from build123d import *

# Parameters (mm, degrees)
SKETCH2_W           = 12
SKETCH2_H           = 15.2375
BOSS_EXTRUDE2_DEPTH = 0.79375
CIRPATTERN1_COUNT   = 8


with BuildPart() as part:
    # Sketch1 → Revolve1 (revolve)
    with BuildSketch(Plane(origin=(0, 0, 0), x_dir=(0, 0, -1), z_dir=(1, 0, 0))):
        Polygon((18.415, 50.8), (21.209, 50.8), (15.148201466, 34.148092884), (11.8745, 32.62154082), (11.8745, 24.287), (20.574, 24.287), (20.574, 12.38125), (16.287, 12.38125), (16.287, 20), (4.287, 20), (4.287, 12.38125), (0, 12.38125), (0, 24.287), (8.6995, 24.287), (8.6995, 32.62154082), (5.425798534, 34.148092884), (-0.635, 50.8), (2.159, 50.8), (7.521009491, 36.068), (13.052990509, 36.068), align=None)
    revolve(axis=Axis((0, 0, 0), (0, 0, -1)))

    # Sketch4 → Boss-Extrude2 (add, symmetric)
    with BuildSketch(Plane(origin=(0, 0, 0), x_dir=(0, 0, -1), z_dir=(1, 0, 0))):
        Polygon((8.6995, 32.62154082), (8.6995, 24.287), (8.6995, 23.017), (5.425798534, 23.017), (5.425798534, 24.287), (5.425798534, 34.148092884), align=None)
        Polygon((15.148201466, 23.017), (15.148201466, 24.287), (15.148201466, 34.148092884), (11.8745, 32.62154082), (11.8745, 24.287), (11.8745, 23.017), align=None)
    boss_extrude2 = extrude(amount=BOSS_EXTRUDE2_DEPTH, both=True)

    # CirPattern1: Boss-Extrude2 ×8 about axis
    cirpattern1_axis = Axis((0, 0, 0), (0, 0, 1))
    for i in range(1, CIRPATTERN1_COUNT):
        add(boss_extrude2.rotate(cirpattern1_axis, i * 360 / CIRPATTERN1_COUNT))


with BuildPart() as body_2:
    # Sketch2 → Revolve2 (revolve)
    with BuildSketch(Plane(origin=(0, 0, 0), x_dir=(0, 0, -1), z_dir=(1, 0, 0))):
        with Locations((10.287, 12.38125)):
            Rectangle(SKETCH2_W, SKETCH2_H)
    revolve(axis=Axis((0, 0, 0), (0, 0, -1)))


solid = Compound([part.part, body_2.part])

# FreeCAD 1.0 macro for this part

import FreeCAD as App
import Part
import Sketcher
Q = App.Units.Quantity

doc = App.newDocument("Part")
params = doc.addObject("Spreadsheet::Sheet", "Params")
for row, (alias, value) in enumerate([
    ("sketch1_height", "0.11 in"),
    ("revolution_angle", "360 deg"),
    ("pad1_length", "0.0625 in"),
    ("revolution2_angle", "360 deg"),
], start=1):
    params.set(f"A{row}", alias)
    params.set(f"B{row}", "=" + value)
    params.setAlias(f"B{row}", alias)

body = doc.addObject("PartDesign::Body", "Body")

sketch1 = body.newObject("Sketcher::SketchObject", "Sketch")
sketch1.AttachmentSupport = (doc.getObject("YZ_Plane"), [""])
sketch1.MapMode = "FlatFace"
sketch1.addGeometry([
    Part.LineSegment(App.Vector(50.8, -21.2, 0), App.Vector(50.8, -18.4, 0)),
    Part.LineSegment(App.Vector(50.8, -18.4, 0), App.Vector(36.1, -13.1, 0)),
    Part.LineSegment(App.Vector(36.1, -13.1, 0), App.Vector(36.1, -7.5, 0)),
    Part.LineSegment(App.Vector(36.1, -7.5, 0), App.Vector(50.8, -2.2, 0)),
    Part.LineSegment(App.Vector(50.8, -2.2, 0), App.Vector(50.8, 0.6, 0)),
    Part.LineSegment(App.Vector(50.8, 0.6, 0), App.Vector(34.1, -5.4, 0)),
    Part.LineSegment(App.Vector(34.1, -5.4, 0), App.Vector(32.6, -8.7, 0)),
    Part.LineSegment(App.Vector(32.6, -8.7, 0), App.Vector(24.3, -8.7, 0)),
    Part.LineSegment(App.Vector(24.3, -8.7, 0), App.Vector(24.3, 0, 0)),
    Part.LineSegment(App.Vector(24.3, 0, 0), App.Vector(12.4, 0, 0)),
    Part.LineSegment(App.Vector(12.4, 0, 0), App.Vector(12.4, -4.3, 0)),
    Part.LineSegment(App.Vector(12.4, -4.3, 0), App.Vector(20, -4.3, 0)),
    Part.LineSegment(App.Vector(20, -4.3, 0), App.Vector(20, -16.3, 0)),
    Part.LineSegment(App.Vector(20, -16.3, 0), App.Vector(12.4, -16.3, 0)),
    Part.LineSegment(App.Vector(12.4, -16.3, 0), App.Vector(12.4, -20.6, 0)),
    Part.LineSegment(App.Vector(12.4, -20.6, 0), App.Vector(24.3, -20.6, 0)),
    Part.LineSegment(App.Vector(24.3, -20.6, 0), App.Vector(24.3, -11.9, 0)),
    Part.LineSegment(App.Vector(24.3, -11.9, 0), App.Vector(32.6, -11.9, 0)),
    Part.LineSegment(App.Vector(32.6, -11.9, 0), App.Vector(34.1, -15.1, 0)),
    Part.LineSegment(App.Vector(34.1, -15.1, 0), App.Vector(50.8, -21.2, 0)),
], False)
sketch1.addConstraint([
    Sketcher.Constraint("Coincident", 0, 2, 1, 1),
    Sketcher.Constraint("Coincident", 1, 2, 2, 1),
    Sketcher.Constraint("Coincident", 2, 2, 3, 1),
    Sketcher.Constraint("Coincident", 3, 2, 4, 1),
    Sketcher.Constraint("Coincident", 4, 2, 5, 1),
    Sketcher.Constraint("Coincident", 5, 2, 6, 1),
    Sketcher.Constraint("Coincident", 6, 2, 7, 1),
    Sketcher.Constraint("Coincident", 7, 2, 8, 1),
    Sketcher.Constraint("Coincident", 8, 2, 9, 1),
    Sketcher.Constraint("Coincident", 9, 2, 10, 1),
    Sketcher.Constraint("Coincident", 10, 2, 11, 1),
    Sketcher.Constraint("Coincident", 11, 2, 12, 1),
    Sketcher.Constraint("Coincident", 12, 2, 13, 1),
    Sketcher.Constraint("Coincident", 13, 2, 14, 1),
    Sketcher.Constraint("Coincident", 14, 2, 15, 1),
    Sketcher.Constraint("Coincident", 15, 2, 16, 1),
    Sketcher.Constraint("Coincident", 16, 2, 17, 1),
    Sketcher.Constraint("Coincident", 17, 2, 18, 1),
    Sketcher.Constraint("Coincident", 18, 2, 19, 1),
    Sketcher.Constraint("Coincident", 19, 2, 0, 1),
    Sketcher.Constraint("Vertical", 0),
    Sketcher.Constraint("Vertical", 2),
    Sketcher.Constraint("Vertical", 4),
    Sketcher.Constraint("Horizontal", 7),
    Sketcher.Constraint("Vertical", 8),
    Sketcher.Constraint("Horizontal", 9),
    Sketcher.Constraint("Vertical", 10),
    Sketcher.Constraint("Horizontal", 11),
    Sketcher.Constraint("Vertical", 12),
    Sketcher.Constraint("Horizontal", 13),
    Sketcher.Constraint("Vertical", 14),
    Sketcher.Constraint("Horizontal", 15),
    Sketcher.Constraint("Vertical", 16),
    Sketcher.Constraint("Horizontal", 17),
    Sketcher.Constraint("PointOnObject", 8, 2, -1),
    Sketcher.Constraint("Parallel", 3, 5),
    Sketcher.Constraint("Parallel", 1, 19),
    Sketcher.Constraint("Vertical", 0, 2, 3, 2),
    Sketcher.Constraint("Vertical", 10, 2, 13, 2),
    Sketcher.Constraint("Vertical", 8, 2, 15, 2),
    Sketcher.Constraint("Vertical", 6, 2, 17, 2),
    Sketcher.Constraint("Vertical", 5, 2, 18, 2),
    Sketcher.Constraint("Equal", 0, 4),
    Sketcher.Constraint("Equal", 10, 14),
    Sketcher.Constraint("Equal", 8, 16),
    Sketcher.Constraint("Equal", 1, 3),
    Sketcher.Constraint("Equal", 6, 18),
    Sketcher.Constraint("DistanceX", -1, 1, 0, 2, Q("2 in")),
    Sketcher.Constraint("Angle", 1, Q("160 deg")),
    Sketcher.Constraint("Angle", 6, Q("-115 deg")),
    Sketcher.Constraint("DistanceY", 0, 1, 0, 2, Q("0.11 in")),
    Sketcher.Constraint("DistanceX", -1, 1, 1, 2, Q("1.42 in")),
    Sketcher.Constraint("DistanceY", 14, 2, -1, 1, Q("0.81 in")),
    Sketcher.Constraint("DistanceY", 0, 2, 3, 2, Q("0.64 in")),
    Sketcher.Constraint("DistanceY", 8, 1, 8, 2, Q("0.3425 in")),
    Sketcher.Constraint("DistanceY", 10, 2, 10, 1, 4.287),
    Sketcher.Constraint("DistanceX", 7, 2, 7, 1, 8.334541),
    Sketcher.Constraint("DistanceX", 9, 2, 9, 1, 11.90575),
    Sketcher.Constraint("DistanceX", 11, 1, 11, 2, 7.61875),
    Sketcher.Constraint("DistanceY", 5, 2, -1, 1, 5.425799),
])
sketch1.setExpression("Constraints[50]", "Params.sketch1_height")
revolution = body.newObject("PartDesign::Revolution", "Revolution")
revolution.Profile = sketch1
revolution.ReferenceAxis = (sketch1, ["V_Axis"])
revolution.setExpression("Angle", "Params.revolution_angle")

sketch2 = body.newObject("Sketcher::SketchObject", "Sketch001")
sketch2.AttachmentSupport = (doc.getObject("YZ_Plane"), [""])
sketch2.MapMode = "FlatFace"
sketch2.addGeometry([
    Part.LineSegment(App.Vector(23, -8.7, 0), App.Vector(32.6, -8.7, 0)),
    Part.LineSegment(App.Vector(32.6, -8.7, 0), App.Vector(34.1, -5.4, 0)),
    Part.LineSegment(App.Vector(34.1, -5.4, 0), App.Vector(23, -5.4, 0)),
    Part.LineSegment(App.Vector(23, -5.4, 0), App.Vector(23, -8.7, 0)),
    Part.LineSegment(App.Vector(23, -15.1, 0), App.Vector(34.1, -15.1, 0)),
    Part.LineSegment(App.Vector(34.1, -15.1, 0), App.Vector(32.6, -11.9, 0)),
    Part.LineSegment(App.Vector(32.6, -11.9, 0), App.Vector(23, -11.9, 0)),
    Part.LineSegment(App.Vector(23, -11.9, 0), App.Vector(23, -15.1, 0)),
], False)
sketch2.addConstraint([
    Sketcher.Constraint("Coincident", 0, 2, 1, 1),
    Sketcher.Constraint("Coincident", 1, 2, 2, 1),
    Sketcher.Constraint("Coincident", 2, 2, 3, 1),
    Sketcher.Constraint("Coincident", 3, 2, 0, 1),
    Sketcher.Constraint("Coincident", 4, 2, 5, 1),
    Sketcher.Constraint("Coincident", 5, 2, 6, 1),
    Sketcher.Constraint("Coincident", 6, 2, 7, 1),
    Sketcher.Constraint("Coincident", 7, 2, 4, 1),
    Sketcher.Constraint("Horizontal", 0),
    Sketcher.Constraint("Horizontal", 2),
    Sketcher.Constraint("Vertical", 3),
    Sketcher.Constraint("Horizontal", 4),
    Sketcher.Constraint("Horizontal", 6),
    Sketcher.Constraint("Vertical", 7),
    Sketcher.Constraint("Vertical", 1, 2, 4, 2),
    Sketcher.Constraint("Vertical", 0, 2, 5, 2),
    Sketcher.Constraint("Vertical", 3, 2, 6, 2),
    Sketcher.Constraint("Equal", 3, 7),
    Sketcher.Constraint("Angle", 1, Q("65 deg")),
    Sketcher.Constraint("DistanceY", 5, 2, 0, 2, Q("0.125 in")),
    Sketcher.Constraint("DistanceY", 3, 2, 3, 1, 3.273701),
    Sketcher.Constraint("DistanceY", 0, 2, -1, 1, Q("0.3425 in")),
    Sketcher.Constraint("DistanceX", 0, 1, 0, 2, 9.604541),
    Sketcher.Constraint("DistanceX", -1, 1, 2, 2, 23.017),
])
pad1 = body.newObject("PartDesign::Pad", "Pad")
pad1.Profile = sketch2
pad1.setExpression("Length", "Params.pad1_length")
pad1.Midplane = True
doc.recompute()

polarpattern = body.newObject("PartDesign::PolarPattern", "PolarPattern")
polarpattern.Originals = [pad1]
polarpattern.Axis = (doc.getObject("Z_Axis"), [""])
polarpattern.Angle = 360
polarpattern.Occurrences = 8
body.Tip = polarpattern
body2 = doc.addObject("PartDesign::Body", "Body001")

sketch3 = body2.newObject("Sketcher::SketchObject", "Sketch002")
sketch3.AttachmentSupport = (doc.getObject("YZ_Plane001"), [""])
sketch3.MapMode = "FlatFace"
sketch3.addGeometry([
    Part.LineSegment(App.Vector(20, -4, 0), App.Vector(5, -4, 0)),
    Part.LineSegment(App.Vector(5, -4, 0), App.Vector(5, -16, 0)),
    Part.LineSegment(App.Vector(5, -16, 0), App.Vector(20, -16, 0)),
    Part.LineSegment(App.Vector(20, -16, 0), App.Vector(20, -4, 0)),
], False)
sketch3.addConstraint([
    Sketcher.Constraint("Coincident", 0, 2, 1, 1),
    Sketcher.Constraint("Coincident", 1, 2, 2, 1),
    Sketcher.Constraint("Coincident", 2, 2, 3, 1),
    Sketcher.Constraint("Coincident", 3, 2, 0, 1),
    Sketcher.Constraint("Horizontal", 0),
    Sketcher.Constraint("Vertical", 1),
    Sketcher.Constraint("Horizontal", 2),
    Sketcher.Constraint("Vertical", 3),
    Sketcher.Constraint("DistanceX", -1, 1, 0, 2, Q("0.1875 in")),
    Sketcher.Constraint("DistanceX", 0, 2, 0, 1, 15.2375),
    Sketcher.Constraint("DistanceY", 1, 2, 1, 1, 12.0),
    Sketcher.Constraint("DistanceY", 0, 2, -1, 1, 4.287),
])
revolution2 = body2.newObject("PartDesign::Revolution", "Revolution001")
revolution2.Profile = sketch3
revolution2.ReferenceAxis = (sketch3, ["V_Axis"])
revolution2.setExpression("Angle", "Params.revolution2_angle")

doc.recompute()
